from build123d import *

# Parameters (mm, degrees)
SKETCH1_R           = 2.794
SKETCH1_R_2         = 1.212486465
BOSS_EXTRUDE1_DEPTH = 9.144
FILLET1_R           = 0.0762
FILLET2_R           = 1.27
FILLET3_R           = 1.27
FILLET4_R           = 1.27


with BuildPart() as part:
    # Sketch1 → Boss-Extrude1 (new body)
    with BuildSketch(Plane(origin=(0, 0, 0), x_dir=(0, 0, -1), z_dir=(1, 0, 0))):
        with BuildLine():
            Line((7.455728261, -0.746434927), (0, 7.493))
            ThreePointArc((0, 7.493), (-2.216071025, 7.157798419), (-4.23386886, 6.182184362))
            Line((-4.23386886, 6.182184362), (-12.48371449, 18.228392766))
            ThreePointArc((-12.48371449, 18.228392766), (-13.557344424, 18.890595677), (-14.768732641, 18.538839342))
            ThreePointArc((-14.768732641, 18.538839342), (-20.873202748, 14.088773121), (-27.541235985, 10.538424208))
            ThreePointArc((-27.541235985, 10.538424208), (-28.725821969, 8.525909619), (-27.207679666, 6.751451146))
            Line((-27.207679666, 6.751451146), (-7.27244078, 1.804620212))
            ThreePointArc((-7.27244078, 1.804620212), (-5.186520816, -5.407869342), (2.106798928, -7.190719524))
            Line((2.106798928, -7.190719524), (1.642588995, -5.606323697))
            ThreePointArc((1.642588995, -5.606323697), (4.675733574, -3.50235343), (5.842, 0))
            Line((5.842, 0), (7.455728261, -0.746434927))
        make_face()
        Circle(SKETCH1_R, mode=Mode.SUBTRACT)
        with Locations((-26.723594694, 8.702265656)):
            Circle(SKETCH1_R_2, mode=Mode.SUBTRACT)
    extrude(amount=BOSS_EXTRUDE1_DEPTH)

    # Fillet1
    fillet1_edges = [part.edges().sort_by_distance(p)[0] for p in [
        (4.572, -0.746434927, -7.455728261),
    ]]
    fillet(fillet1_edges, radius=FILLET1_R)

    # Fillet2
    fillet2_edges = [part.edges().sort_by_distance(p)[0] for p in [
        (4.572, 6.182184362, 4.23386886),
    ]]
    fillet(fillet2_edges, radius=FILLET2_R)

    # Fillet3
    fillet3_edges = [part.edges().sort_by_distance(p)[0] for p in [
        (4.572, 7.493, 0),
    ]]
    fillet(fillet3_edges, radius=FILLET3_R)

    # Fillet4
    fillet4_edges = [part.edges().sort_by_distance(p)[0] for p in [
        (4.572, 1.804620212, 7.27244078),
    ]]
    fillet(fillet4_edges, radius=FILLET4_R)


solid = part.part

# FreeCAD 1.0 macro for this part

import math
import FreeCAD as App
import Part
import Sketcher

V = App.Vector
Q = App.Units.Quantity


def edges_at(feature, points):
    """Names of the edges that pass closest to the given points."""
    edges = feature.Shape.Edges
    near = lambda p: min(range(len(edges)), key=lambda i: edges[i].distToShape(Part.Vertex(*p))[0])
    return sorted({f"Edge{near(p) + 1}" for p in points})

doc = App.newDocument("Part")
body = doc.addObject("PartDesign::Body", "Body")

# Sketch on YZ plane
sketch1 = body.newObject("Sketcher::SketchObject", "Sketch")
sketch1.AttachmentSupport = (doc.getObject("YZ_Plane"), [""])
sketch1.MapMode = "FlatFace"
sketch1.addGeometry([
    Part.LineSegment(V(-0.746435, -7.455728, 0), V(7.493, 0, 0)),  # 0
    Part.ArcOfCircle(Part.Circle(V(0, 0, 0), V(0, 0, 1), 7.493), math.radians(0), math.radians(34.405293)),  # 1
    Part.LineSegment(V(6.182184, 4.233869, 0), V(18.228393, 12.483714, 0)),  # 2
    Part.ArcOfCircle(Part.Circle(V(17.349749, 13.766687, 0), V(0, 0, 1), 1.555002), math.radians(-55.594707), math.radians(40.12084)),  # 3
    Part.ArcOfCircle(Part.Circle(V(59.64373, 49.407826, 0), V(0, 0, 1), 53.753873), math.radians(-155.996593), math.radians(-139.87916)),  # 4
    Part.ArcOfCircle(Part.Circle(V(8.702266, 26.723595, 0), V(0, 0, 1), 2.009979), math.radians(24.003407), math.radians(166.063829)),  # 5
    Part.LineSegment(V(6.751451, 27.20768, 0), V(1.80462, 7.272441, 0)),  # 6
    Part.ArcOfCircle(Part.Circle(V(0, 0, 0), V(0, 0, 1), 7.493), math.radians(76.063829), math.radians(196.329984)),  # 7
    Part.LineSegment(V(-7.19072, -2.106799, 0), V(-5.606324, -1.642589, 0)),  # 8
    Part.ArcOfCircle(Part.Circle(V(0, 0, 0), V(0, 0, 1), 5.842), math.radians(-163.670016), math.radians(-90)),  # 9
    Part.LineSegment(V(0, -5.842, 0), V(-0.746435, -7.455728, 0)),  # 10
    Part.Circle(V(0, 0, 0), V(0, 0, 1), 2.794),  # 11
    Part.Circle(V(8.702266, 26.723595, 0), V(0, 0, 1), 1.212486),  # 12
], False)
sketch1.addConstraint([
    Sketcher.Constraint("Coincident", 0, 2, 1, 1),
    Sketcher.Constraint("Coincident", 1, 2, 2, 1),
    Sketcher.Constraint("Tangent", 2, 2, 3, 1),
    Sketcher.Constraint("Tangent", 3, 2, 4, 2),
    Sketcher.Constraint("Tangent", 4, 1, 5, 1),
    Sketcher.Constraint("Tangent", 5, 2, 6, 1),
    Sketcher.Constraint("Coincident", 6, 2, 7, 1),
    Sketcher.Constraint("Coincident", 7, 2, 8, 1),
    Sketcher.Constraint("Coincident", 8, 2, 9, 1),
    Sketcher.Constraint("Coincident", 9, 2, 10, 1),
    Sketcher.Constraint("Coincident", 10, 2, 0, 1),
    Sketcher.Constraint("Coincident", 1, 3, -1, 1),
    Sketcher.Constraint("Coincident", 7, 3, -1, 1),
    Sketcher.Constraint("Coincident", 9, 3, -1, 1),
    Sketcher.Constraint("Coincident", 11, 3, -1, 1),
    Sketcher.Constraint("Coincident", 12, 3, 5, 3),
    Sketcher.Constraint("Equal", 1, 7),
    Sketcher.Constraint("PointOnObject", 0, 2, -1),
    Sketcher.Constraint("PointOnObject", 9, 2, -2),
    Sketcher.Constraint("Diameter", 11, Q("0.22 in")),
    Sketcher.Constraint("Radius", 9, Q("0.23 in")),
    Sketcher.Constraint("Radius", 1, Q("0.295 in")),
    Sketcher.Constraint("Distance", 10, Q("0.07 in")),
    Sketcher.Constraint("Angle", 8, Q("16.329984 deg")),
    Sketcher.Constraint("Radius", 5, Q("2.009979 mm")),
    Sketcher.Constraint("Diameter", 12, Q("2.424973 mm")),
    Sketcher.Constraint("Radius", 3, Q("1.555002 mm")),
    Sketcher.Constraint("Radius", 4, Q("53.753873 mm")),
    Sketcher.Constraint("DistanceY", 7, 2, -1, 1, Q("2.106799 mm")),
    Sketcher.Constraint("DistanceX", 5, 2, 3, 3, Q("10.598298 mm")),
    Sketcher.Constraint("Distance", 2, Q("14.60038 mm")),
    Sketcher.Constraint("DistanceX", -1, 1, 3, 3, Q("17.349749 mm")),
    Sketcher.Constraint("DistanceX", -1, 1, 4, 3, Q("59.64373 mm")),
    Sketcher.Constraint("DistanceY", -1, 1, 1, 2, Q("4.233869 mm")),
    Sketcher.Constraint("DistanceY", -1, 1, 5, 2, Q("27.20768 mm")),
    Sketcher.Constraint("DistanceY", 10, 2, -1, 1, Q("7.455728 mm")),
])
pad1 = body.newObject("PartDesign::Pad", "Pad")
pad1.Profile = sketch1
pad1.Length = Q("0.36 in")
doc.recompute()

fillet = body.newObject("PartDesign::Fillet", "Fillet")
fillet.Base = (pad1, edges_at(pad1, [(4.572, -0.746, -7.456)]))
fillet.Radius = Q("0.003 in")
doc.recompute()

fillet2 = body.newObject("PartDesign::Fillet", "Fillet001")
fillet2.Base = (fillet, edges_at(fillet, [(4.572, 6.182, 4.234)]))
fillet2.Radius = Q("0.05 in")
doc.recompute()

fillet3 = body.newObject("PartDesign::Fillet", "Fillet002")
fillet3.Base = (fillet2, edges_at(fillet2, [(4.572, 7.493, 0)]))
fillet3.Radius = Q("0.05 in")
doc.recompute()

fillet4 = body.newObject("PartDesign::Fillet", "Fillet003")
fillet4.Base = (fillet3, edges_at(fillet3, [(4.572, 1.805, 7.272)]))
fillet4.Radius = Q("0.05 in")

doc.recompute()
